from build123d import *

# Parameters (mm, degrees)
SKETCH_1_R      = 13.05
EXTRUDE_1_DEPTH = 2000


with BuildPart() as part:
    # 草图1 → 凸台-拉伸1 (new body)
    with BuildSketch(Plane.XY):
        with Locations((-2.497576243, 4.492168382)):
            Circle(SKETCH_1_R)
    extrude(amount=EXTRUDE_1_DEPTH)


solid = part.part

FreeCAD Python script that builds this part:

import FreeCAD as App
import Part
import Sketcher

doc = App.newDocument("Part")
params = doc.addObject("Spreadsheet::Sheet", "Params")
for row, (alias, value) in enumerate([
    ("sketch1_diameter", "26.1 mm"),
    ("pad1_length", "2000 mm"),
], start=1):
    params.set(f"A{row}", alias)
    params.set(f"B{row}", "=" + value)
    params.setAlias(f"B{row}", alias)

body = doc.addObject("PartDesign::Body", "Body")

sketch1 = doc.addObject("Sketcher::SketchObject", "Sketch")
body.addObject(sketch1)
sketch1.AttachmentSupport = (doc.XY_Plane, [""])
sketch1.MapMode = "FlatFace"
sketch1.addGeometry(Part.Circle(App.Vector(-2, 4, 0), App.Vector(0, 0, 1), 13), False)
sketch1.addConstraint(Sketcher.Constraint("Diameter", 0, 26.1))
sketch1.addConstraint(Sketcher.Constraint("DistanceY", -1, 1, 0, 3, 4.492168))
sketch1.addConstraint(Sketcher.Constraint("DistanceX", 0, 3, -1, 1, 2.497576))
sketch1.setExpression("Constraints[0]", "Params.sketch1_diameter")
pad1 = doc.addObject("PartDesign::Pad", "Pad")
body.addObject(pad1)
pad1.Profile = sketch1
pad1.setExpression("Length", "Params.pad1_length")

doc.recompute()
